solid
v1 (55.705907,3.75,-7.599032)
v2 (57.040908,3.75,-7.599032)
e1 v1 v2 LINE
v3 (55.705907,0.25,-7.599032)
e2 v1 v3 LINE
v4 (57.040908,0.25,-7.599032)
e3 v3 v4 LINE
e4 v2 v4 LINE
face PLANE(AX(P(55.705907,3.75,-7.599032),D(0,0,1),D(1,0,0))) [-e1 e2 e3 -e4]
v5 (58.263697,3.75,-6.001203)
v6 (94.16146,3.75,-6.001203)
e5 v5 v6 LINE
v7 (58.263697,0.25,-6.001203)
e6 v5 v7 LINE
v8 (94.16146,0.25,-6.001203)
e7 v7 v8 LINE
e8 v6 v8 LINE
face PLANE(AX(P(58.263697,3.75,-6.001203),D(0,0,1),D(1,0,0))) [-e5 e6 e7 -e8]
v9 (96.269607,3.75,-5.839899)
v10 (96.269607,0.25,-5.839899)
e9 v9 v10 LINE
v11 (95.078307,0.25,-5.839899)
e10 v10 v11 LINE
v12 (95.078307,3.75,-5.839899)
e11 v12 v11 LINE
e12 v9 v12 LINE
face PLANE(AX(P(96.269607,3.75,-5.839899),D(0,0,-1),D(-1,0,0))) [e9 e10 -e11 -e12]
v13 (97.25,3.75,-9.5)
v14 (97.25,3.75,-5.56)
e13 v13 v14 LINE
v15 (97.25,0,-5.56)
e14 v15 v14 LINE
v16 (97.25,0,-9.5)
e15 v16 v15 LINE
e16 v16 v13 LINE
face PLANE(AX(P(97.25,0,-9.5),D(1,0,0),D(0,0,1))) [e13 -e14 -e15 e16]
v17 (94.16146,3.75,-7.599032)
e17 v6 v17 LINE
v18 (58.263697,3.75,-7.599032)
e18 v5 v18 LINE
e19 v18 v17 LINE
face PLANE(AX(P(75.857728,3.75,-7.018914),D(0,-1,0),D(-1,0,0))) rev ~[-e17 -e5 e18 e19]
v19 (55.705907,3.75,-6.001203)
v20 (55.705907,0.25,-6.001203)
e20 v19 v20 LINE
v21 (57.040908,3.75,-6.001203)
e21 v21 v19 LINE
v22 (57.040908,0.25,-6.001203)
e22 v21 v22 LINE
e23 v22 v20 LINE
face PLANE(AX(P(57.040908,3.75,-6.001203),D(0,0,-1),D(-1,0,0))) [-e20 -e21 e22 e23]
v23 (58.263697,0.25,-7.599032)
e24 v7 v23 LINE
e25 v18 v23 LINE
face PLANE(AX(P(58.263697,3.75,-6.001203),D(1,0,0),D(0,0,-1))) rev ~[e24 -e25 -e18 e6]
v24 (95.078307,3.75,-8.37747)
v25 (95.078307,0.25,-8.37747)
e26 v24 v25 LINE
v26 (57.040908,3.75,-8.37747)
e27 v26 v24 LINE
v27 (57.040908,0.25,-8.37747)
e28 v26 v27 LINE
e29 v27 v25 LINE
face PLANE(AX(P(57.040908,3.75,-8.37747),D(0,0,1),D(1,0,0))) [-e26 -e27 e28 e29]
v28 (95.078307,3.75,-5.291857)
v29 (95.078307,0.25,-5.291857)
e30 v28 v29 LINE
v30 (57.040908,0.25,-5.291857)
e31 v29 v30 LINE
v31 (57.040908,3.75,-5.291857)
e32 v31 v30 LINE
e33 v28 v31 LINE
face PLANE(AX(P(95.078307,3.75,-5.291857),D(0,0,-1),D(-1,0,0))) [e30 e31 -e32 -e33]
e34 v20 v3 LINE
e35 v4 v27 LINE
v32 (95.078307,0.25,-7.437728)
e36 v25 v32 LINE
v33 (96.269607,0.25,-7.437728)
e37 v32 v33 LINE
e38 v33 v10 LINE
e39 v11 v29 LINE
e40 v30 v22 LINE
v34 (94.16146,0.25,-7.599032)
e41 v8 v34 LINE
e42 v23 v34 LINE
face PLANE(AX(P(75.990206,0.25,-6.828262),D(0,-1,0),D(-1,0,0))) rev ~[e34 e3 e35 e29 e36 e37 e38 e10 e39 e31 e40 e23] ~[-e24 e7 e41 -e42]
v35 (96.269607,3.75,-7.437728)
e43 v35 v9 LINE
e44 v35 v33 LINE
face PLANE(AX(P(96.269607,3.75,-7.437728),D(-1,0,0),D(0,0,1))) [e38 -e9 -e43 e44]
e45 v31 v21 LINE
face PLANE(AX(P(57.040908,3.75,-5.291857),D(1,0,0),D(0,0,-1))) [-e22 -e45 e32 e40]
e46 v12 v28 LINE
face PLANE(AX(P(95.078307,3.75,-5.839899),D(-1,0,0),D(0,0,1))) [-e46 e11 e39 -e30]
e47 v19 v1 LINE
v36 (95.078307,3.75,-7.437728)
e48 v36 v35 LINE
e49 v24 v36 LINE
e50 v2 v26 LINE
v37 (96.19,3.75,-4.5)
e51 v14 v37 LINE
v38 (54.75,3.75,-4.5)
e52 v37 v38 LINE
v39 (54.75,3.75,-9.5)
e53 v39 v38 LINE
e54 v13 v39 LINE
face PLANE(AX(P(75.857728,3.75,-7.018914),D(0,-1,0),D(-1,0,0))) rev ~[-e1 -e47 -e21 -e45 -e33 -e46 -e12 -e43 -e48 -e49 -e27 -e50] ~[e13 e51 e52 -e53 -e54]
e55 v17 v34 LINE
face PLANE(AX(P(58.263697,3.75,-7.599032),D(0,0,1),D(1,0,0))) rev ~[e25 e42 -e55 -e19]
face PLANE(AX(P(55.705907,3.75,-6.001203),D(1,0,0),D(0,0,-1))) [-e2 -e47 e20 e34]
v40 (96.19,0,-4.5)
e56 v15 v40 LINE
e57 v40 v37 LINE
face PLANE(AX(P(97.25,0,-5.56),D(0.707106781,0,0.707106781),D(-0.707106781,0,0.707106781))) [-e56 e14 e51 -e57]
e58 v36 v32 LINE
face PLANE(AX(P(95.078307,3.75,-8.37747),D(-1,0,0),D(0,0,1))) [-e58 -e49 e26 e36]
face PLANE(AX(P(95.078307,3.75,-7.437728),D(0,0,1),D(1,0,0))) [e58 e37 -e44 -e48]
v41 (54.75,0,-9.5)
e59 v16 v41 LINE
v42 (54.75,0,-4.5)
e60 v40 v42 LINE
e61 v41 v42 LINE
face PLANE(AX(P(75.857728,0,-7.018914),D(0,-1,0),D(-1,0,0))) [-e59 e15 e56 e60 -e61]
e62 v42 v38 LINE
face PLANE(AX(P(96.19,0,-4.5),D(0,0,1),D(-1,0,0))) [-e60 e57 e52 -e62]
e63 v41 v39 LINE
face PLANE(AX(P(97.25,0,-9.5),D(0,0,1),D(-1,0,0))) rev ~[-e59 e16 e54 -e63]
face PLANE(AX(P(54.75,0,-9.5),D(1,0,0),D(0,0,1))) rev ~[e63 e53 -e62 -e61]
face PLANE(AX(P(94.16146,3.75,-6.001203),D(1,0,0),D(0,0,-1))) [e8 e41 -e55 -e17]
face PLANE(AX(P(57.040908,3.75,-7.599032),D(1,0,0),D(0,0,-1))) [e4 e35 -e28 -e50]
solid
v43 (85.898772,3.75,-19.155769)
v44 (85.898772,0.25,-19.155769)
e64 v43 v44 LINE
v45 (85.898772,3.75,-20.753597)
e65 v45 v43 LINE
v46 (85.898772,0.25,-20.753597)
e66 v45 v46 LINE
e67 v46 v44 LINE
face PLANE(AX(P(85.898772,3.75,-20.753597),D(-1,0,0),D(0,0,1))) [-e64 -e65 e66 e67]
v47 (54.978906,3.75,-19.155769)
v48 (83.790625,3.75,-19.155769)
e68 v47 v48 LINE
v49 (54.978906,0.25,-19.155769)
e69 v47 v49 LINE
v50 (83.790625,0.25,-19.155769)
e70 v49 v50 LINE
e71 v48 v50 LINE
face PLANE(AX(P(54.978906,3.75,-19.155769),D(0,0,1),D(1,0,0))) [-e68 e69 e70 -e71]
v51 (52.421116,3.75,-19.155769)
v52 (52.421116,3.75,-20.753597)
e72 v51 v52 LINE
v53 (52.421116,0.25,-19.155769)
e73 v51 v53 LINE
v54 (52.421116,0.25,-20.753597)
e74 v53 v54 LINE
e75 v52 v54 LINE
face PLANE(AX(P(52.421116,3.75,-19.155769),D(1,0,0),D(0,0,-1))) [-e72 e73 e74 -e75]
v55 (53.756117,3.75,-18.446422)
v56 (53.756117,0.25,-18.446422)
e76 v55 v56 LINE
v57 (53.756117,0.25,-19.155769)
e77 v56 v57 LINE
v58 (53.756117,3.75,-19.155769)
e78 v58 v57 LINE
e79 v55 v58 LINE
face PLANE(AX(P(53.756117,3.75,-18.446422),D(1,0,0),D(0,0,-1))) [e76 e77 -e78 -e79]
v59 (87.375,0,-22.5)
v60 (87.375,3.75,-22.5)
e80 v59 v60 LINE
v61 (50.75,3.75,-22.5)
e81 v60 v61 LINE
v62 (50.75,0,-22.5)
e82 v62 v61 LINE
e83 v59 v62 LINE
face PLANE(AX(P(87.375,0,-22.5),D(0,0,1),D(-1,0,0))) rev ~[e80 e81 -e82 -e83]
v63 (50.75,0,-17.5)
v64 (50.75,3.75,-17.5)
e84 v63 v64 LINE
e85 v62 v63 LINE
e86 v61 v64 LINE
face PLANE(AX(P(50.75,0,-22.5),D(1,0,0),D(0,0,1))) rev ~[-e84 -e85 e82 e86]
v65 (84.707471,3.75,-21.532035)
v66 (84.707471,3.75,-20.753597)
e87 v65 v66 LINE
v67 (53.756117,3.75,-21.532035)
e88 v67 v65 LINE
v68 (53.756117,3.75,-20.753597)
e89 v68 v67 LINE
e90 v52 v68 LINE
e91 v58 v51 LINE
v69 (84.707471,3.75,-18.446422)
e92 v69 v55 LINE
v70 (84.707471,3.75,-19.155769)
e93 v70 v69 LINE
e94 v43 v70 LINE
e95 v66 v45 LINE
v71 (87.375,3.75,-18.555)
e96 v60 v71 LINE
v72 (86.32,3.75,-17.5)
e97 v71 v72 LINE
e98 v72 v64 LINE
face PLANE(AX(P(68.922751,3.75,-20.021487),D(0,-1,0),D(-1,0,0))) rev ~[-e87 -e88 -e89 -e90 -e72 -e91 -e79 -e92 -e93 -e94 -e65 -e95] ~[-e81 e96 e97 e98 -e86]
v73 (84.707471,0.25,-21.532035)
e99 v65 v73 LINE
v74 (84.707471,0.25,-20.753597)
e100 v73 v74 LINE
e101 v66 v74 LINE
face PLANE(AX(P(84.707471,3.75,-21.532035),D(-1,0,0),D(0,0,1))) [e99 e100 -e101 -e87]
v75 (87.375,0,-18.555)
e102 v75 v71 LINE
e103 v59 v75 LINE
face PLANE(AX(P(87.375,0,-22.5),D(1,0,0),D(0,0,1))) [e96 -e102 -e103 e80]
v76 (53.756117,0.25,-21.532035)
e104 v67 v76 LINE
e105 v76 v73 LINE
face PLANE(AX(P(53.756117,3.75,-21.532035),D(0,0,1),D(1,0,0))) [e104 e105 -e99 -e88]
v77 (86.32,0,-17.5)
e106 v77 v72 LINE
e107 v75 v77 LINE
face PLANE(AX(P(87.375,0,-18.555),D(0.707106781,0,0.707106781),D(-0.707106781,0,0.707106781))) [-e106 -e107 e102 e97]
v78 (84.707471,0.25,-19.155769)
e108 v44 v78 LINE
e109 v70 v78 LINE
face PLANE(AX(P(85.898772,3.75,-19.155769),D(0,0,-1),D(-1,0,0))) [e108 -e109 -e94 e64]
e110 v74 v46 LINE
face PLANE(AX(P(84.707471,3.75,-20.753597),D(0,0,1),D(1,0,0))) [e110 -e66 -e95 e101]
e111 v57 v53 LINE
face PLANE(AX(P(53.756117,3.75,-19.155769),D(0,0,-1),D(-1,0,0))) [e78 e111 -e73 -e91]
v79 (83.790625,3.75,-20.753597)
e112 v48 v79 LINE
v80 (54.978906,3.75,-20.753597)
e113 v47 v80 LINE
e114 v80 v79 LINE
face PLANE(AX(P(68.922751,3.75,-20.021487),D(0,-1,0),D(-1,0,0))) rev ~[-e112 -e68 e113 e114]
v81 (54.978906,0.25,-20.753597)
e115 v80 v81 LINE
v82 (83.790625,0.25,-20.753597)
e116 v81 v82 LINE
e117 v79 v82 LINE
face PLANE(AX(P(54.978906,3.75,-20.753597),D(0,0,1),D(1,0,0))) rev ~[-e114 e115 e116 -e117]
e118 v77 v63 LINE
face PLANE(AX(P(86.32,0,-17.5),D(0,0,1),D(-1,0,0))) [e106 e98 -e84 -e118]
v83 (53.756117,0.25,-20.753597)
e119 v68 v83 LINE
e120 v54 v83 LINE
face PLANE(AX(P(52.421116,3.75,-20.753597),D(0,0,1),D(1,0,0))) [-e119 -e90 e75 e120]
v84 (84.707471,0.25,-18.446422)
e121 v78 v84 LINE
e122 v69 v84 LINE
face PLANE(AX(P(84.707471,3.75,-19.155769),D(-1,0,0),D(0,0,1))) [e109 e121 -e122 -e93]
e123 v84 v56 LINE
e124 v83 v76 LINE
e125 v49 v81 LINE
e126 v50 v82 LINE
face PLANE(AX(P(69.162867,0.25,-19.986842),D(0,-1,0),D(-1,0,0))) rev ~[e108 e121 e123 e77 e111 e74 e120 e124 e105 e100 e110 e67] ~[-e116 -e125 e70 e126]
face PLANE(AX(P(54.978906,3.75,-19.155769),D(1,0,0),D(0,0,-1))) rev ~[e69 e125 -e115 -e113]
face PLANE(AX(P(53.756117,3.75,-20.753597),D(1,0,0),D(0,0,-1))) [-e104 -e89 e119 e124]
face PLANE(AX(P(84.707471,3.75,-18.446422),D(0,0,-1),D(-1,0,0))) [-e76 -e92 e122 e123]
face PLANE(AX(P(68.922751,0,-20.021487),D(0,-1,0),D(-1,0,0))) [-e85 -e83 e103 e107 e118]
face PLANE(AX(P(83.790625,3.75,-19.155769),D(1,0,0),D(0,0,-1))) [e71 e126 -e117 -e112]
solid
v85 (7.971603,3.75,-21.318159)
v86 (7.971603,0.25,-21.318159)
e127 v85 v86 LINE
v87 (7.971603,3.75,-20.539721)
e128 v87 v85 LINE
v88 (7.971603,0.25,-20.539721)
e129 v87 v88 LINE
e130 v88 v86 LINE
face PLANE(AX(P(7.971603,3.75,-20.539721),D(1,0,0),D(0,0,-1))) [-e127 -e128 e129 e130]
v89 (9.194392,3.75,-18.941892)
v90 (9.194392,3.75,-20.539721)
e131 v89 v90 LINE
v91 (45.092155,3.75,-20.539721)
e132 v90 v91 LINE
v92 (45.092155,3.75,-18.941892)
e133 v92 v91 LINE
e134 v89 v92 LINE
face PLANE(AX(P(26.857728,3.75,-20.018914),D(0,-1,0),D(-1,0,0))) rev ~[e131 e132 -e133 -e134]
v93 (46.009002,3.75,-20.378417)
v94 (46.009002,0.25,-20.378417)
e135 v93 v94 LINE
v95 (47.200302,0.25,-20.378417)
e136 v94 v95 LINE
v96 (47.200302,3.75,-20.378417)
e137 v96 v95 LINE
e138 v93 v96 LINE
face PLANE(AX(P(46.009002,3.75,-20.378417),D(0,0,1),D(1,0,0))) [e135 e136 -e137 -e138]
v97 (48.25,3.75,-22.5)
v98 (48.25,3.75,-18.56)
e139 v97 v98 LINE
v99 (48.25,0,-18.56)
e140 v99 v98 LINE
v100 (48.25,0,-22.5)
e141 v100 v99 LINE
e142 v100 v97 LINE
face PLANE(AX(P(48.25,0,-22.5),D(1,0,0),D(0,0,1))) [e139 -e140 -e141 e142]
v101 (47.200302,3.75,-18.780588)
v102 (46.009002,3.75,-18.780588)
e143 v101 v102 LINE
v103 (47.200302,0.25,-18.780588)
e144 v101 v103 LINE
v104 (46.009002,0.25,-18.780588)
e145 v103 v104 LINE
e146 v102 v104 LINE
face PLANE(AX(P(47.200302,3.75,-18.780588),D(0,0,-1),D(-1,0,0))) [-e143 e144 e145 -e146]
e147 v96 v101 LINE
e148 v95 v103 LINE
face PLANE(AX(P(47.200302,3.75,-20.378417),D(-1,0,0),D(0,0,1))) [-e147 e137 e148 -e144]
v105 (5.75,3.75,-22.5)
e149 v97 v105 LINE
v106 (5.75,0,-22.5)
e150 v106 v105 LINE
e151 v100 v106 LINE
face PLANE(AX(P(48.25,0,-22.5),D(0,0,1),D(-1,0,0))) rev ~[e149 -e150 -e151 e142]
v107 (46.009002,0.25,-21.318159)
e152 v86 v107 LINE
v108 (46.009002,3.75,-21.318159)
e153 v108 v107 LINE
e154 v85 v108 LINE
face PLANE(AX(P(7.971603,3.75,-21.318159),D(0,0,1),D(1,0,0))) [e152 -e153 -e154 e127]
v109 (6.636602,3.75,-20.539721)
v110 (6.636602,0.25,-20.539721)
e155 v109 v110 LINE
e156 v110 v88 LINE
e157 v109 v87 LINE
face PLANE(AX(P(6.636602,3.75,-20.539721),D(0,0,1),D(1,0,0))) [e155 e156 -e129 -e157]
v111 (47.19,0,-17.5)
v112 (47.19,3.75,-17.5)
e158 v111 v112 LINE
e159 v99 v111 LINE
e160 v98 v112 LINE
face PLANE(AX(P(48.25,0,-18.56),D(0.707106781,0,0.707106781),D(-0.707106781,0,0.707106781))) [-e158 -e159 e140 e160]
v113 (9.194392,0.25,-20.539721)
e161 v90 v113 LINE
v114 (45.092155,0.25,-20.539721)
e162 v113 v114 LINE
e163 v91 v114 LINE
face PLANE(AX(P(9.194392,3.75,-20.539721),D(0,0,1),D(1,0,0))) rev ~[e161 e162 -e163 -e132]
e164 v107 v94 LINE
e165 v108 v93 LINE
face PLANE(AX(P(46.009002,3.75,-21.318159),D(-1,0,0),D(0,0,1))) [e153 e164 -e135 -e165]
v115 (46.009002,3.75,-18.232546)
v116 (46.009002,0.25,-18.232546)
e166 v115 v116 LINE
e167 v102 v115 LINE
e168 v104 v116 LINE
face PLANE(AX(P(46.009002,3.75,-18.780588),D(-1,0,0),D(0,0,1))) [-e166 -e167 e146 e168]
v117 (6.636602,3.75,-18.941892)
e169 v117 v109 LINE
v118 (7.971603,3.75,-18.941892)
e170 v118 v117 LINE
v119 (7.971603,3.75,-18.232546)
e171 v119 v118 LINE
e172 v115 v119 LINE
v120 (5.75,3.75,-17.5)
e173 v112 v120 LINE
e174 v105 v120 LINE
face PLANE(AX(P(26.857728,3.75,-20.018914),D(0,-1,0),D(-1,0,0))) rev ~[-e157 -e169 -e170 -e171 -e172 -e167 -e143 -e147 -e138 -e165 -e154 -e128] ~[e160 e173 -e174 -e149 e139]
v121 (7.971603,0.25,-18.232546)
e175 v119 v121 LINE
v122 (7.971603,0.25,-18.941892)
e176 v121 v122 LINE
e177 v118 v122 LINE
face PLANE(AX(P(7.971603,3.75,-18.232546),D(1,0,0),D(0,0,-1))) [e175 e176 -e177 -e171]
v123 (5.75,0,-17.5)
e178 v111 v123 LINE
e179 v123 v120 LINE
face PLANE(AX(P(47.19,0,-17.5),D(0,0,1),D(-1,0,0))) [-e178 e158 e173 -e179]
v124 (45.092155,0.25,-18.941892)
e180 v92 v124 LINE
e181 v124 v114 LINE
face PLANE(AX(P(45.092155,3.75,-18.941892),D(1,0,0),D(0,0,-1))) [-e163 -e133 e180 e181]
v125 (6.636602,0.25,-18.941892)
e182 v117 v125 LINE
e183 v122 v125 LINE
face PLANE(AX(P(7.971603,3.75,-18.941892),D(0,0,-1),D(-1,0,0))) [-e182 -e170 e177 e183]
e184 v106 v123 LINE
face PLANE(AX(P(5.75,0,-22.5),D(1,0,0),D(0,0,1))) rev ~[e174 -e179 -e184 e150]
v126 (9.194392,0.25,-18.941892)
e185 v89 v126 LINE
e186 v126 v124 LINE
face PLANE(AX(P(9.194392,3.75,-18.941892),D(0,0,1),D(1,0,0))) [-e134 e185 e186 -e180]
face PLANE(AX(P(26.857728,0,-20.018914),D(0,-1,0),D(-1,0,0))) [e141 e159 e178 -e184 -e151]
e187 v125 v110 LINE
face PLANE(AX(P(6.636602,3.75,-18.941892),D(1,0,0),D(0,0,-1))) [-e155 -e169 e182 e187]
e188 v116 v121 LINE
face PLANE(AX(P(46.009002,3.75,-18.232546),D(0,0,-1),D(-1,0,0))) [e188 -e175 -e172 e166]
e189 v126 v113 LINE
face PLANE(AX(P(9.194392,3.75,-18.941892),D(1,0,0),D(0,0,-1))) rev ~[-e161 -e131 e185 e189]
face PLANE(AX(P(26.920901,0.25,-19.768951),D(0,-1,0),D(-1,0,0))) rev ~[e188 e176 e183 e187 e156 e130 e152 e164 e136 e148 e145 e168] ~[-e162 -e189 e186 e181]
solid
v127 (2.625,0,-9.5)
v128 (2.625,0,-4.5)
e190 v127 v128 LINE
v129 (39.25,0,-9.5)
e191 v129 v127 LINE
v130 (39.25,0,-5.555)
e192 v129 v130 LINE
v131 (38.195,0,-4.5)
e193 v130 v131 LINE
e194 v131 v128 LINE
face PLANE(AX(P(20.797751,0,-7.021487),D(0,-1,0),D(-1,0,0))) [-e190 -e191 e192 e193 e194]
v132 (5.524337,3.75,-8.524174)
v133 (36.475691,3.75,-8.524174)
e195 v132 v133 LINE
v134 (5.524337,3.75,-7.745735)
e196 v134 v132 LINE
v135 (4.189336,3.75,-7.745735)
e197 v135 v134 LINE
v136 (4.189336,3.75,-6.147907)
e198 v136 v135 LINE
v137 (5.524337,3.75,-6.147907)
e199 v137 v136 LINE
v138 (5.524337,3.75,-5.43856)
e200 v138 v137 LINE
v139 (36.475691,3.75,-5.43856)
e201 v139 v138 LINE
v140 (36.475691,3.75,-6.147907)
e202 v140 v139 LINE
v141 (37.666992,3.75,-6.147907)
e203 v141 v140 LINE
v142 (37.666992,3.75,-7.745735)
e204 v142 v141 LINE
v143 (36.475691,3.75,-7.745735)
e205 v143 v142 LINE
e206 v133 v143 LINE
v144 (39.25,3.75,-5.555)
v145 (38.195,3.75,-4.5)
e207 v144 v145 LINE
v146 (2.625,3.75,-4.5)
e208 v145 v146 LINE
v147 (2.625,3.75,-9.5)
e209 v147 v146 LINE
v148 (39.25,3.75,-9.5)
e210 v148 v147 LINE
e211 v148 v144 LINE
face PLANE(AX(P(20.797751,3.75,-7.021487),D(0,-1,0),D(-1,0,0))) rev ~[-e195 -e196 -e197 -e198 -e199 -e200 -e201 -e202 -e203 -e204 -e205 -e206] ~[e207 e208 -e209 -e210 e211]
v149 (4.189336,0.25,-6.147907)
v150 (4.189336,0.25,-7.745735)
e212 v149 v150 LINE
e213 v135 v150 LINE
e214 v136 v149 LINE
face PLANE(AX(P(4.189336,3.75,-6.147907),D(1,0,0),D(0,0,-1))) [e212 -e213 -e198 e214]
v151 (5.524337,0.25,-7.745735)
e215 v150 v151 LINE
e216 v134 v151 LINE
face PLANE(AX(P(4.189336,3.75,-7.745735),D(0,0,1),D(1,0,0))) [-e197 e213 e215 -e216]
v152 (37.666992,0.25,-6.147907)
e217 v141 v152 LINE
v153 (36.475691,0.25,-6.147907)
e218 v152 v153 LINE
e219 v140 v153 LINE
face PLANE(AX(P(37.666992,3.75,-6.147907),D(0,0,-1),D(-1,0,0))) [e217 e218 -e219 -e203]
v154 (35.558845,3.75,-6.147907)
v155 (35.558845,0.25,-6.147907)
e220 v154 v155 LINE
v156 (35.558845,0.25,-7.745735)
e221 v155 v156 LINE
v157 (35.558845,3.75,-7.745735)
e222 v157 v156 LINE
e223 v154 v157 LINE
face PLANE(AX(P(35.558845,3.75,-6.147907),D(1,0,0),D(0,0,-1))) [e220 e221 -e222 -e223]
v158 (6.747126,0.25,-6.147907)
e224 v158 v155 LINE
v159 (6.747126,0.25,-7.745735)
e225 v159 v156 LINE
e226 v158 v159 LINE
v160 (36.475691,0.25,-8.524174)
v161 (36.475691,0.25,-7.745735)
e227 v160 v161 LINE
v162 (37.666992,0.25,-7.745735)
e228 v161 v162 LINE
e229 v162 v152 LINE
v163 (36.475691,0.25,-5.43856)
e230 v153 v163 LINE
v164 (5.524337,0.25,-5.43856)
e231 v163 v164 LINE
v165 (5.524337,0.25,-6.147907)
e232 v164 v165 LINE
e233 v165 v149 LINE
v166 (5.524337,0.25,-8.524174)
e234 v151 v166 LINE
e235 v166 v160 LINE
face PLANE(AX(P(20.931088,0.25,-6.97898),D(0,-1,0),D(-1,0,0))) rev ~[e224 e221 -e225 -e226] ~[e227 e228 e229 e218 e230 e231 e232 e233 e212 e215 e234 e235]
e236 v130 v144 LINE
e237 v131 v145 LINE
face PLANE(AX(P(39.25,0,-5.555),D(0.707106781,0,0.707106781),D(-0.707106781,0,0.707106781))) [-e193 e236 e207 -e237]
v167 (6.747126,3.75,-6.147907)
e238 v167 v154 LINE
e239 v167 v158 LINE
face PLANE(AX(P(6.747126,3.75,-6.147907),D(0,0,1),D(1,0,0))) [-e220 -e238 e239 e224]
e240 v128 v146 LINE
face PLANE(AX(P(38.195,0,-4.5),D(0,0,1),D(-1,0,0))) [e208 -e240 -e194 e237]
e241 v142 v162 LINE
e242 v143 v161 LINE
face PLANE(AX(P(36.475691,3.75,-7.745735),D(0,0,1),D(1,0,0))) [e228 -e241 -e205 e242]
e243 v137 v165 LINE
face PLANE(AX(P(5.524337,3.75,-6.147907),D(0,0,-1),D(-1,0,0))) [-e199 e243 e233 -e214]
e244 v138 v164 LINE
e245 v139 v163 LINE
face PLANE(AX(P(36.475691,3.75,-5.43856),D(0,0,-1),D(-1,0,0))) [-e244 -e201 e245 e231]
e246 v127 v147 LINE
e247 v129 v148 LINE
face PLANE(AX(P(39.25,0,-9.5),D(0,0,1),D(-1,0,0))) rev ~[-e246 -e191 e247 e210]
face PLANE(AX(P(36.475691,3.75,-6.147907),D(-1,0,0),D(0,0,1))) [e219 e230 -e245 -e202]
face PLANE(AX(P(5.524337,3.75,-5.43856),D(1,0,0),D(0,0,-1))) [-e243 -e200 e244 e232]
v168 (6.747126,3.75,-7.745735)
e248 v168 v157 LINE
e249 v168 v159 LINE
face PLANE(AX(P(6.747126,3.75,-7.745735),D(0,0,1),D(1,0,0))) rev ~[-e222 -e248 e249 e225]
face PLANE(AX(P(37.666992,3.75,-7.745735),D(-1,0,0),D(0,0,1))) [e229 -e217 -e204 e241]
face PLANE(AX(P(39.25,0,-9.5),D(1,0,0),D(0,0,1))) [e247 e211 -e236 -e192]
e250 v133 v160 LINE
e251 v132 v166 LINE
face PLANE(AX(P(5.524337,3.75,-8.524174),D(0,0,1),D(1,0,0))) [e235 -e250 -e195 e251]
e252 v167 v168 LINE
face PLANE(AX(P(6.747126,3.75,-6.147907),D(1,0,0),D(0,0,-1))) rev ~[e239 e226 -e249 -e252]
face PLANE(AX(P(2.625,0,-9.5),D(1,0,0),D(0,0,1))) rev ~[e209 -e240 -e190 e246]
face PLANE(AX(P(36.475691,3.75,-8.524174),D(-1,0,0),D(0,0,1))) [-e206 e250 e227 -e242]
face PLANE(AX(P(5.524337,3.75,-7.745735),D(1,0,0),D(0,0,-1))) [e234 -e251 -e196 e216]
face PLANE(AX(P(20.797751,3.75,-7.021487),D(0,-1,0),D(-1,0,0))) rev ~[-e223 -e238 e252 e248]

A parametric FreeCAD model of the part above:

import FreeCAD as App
import Part
import Sketcher
Q = App.Units.Quantity

doc = App.newDocument("Part")
params = doc.addObject("Spreadsheet::Sheet", "Params")
for row, (alias, value) in enumerate([
    ("sketch1_height", "5 mm"),
    ("sketch1_width", "42.5 mm"),
    ("sketch1_width2", "41.44 mm"),
    ("pad1_length", "3.75 mm"),
    ("sketch2_height", "5 mm"),
    ("sketch2_width", "35.57 mm"),
    ("pad2_length", "3.75 mm"),
    ("sketch3_height", "5 mm"),
    ("sketch3_width", "35.57 mm"),
    ("pad3_length", "3.75 mm"),
    ("sketch4_height", "5 mm"),
    ("sketch4_width", "42.5 mm"),
    ("sketch4_width2", "41.44 mm"),
    ("pad4_length", "3.75 mm"),
    ("pad5_length", "3.5 mm"),
], start=1):
    params.set(f"A{row}", alias)
    params.set(f"B{row}", "=" + value)
    params.setAlias(f"B{row}", alias)

body = doc.addObject("PartDesign::Body", "Body")

# Sketch on XZ plane
sketch1 = body.newObject("Sketcher::SketchObject", "Sketch")
sketch1.AttachmentSupport = (doc.getObject("XZ_Plane"), [""])
sketch1.MapMode = "FlatFace"
sketch1.addGeometry(Part.LineSegment(App.Vector(97.25, -9.5, 0), App.Vector(54.75, -9.5, 0)), False)
sketch1.addGeometry(Part.LineSegment(App.Vector(54.75, -9.5, 0), App.Vector(54.75, -4.5, 0)), False)
sketch1.addGeometry(Part.LineSegment(App.Vector(54.75, -4.5, 0), App.Vector(96.19, -4.5, 0)), False)
sketch1.addGeometry(Part.LineSegment(App.Vector(96.19, -4.5, 0), App.Vector(97.25, -5.56, 0)), False)
sketch1.addGeometry(Part.LineSegment(App.Vector(97.25, -5.56, 0), App.Vector(97.25, -9.5, 0)), False)
sketch1.addConstraint(Sketcher.Constraint("Coincident", 0, 2, 1, 1))
sketch1.addConstraint(Sketcher.Constraint("Coincident", 1, 2, 2, 1))
sketch1.addConstraint(Sketcher.Constraint("Coincident", 2, 2, 3, 1))
sketch1.addConstraint(Sketcher.Constraint("Coincident", 3, 2, 4, 1))
sketch1.addConstraint(Sketcher.Constraint("Coincident", 4, 2, 0, 1))
sketch1.addConstraint(Sketcher.Constraint("Horizontal", 0))
sketch1.addConstraint(Sketcher.Constraint("Vertical", 1))
sketch1.addConstraint(Sketcher.Constraint("Horizontal", 2))
sketch1.addConstraint(Sketcher.Constraint("Vertical", 4))
sketch1.addConstraint(Sketcher.Constraint("DistanceY", 1, 1, 1, 2, Q("5 mm")))
sketch1.addConstraint(Sketcher.Constraint("Angle", 3, Q("-45 deg")))
sketch1.addConstraint(Sketcher.Constraint("DistanceX", 0, 2, 0, 1, Q("42.5 mm")))
sketch1.addConstraint(Sketcher.Constraint("DistanceX", 2, 1, 2, 2, Q("41.44 mm")))
sketch1.addConstraint(Sketcher.Constraint("DistanceY", 0, 2, -1, 1, Q("9.5 mm")))
sketch1.addConstraint(Sketcher.Constraint("DistanceX", -1, 1, 0, 2, Q("54.75 mm")))
sketch1.setExpression("Constraints[9]", "Params.sketch1_height")
sketch1.setExpression("Constraints[11]", "Params.sketch1_width")
sketch1.setExpression("Constraints[12]", "Params.sketch1_width2")
pad1 = body.newObject("PartDesign::Pad", "Pad")
pad1.Profile = sketch1
pad1.setExpression("Length", "Params.pad1_length")
pad1.Reversed = True
body2 = doc.addObject("PartDesign::Body", "Body001")

# Sketch on XZ plane
sketch2 = body2.newObject("Sketcher::SketchObject", "Sketch001")
sketch2.AttachmentSupport = (doc.getObject("XZ_Plane001"), [""])
sketch2.MapMode = "FlatFace"
sketch2.addGeometry(Part.LineSegment(App.Vector(39.25, -9.5, 0), App.Vector(2.625, -9.5, 0)), False)
sketch2.addGeometry(Part.LineSegment(App.Vector(2.625, -9.5, 0), App.Vector(2.625, -4.5, 0)), False)
sketch2.addGeometry(Part.LineSegment(App.Vector(2.625, -4.5, 0), App.Vector(38.195, -4.5, 0)), False)
sketch2.addGeometry(Part.LineSegment(App.Vector(38.195, -4.5, 0), App.Vector(39.25, -5.555, 0)), False)
sketch2.addGeometry(Part.LineSegment(App.Vector(39.25, -5.555, 0), App.Vector(39.25, -9.5, 0)), False)
sketch2.addConstraint(Sketcher.Constraint("Coincident", 0, 2, 1, 1))
sketch2.addConstraint(Sketcher.Constraint("Coincident", 1, 2, 2, 1))
sketch2.addConstraint(Sketcher.Constraint("Coincident", 2, 2, 3, 1))
sketch2.addConstraint(Sketcher.Constraint("Coincident", 3, 2, 4, 1))
sketch2.addConstraint(Sketcher.Constraint("Coincident", 4, 2, 0, 1))
sketch2.addConstraint(Sketcher.Constraint("Horizontal", 0))
sketch2.addConstraint(Sketcher.Constraint("Vertical", 1))
sketch2.addConstraint(Sketcher.Constraint("Horizontal", 2))
sketch2.addConstraint(Sketcher.Constraint("Vertical", 4))
sketch2.addConstraint(Sketcher.Constraint("DistanceY", 1, 1, 1, 2, Q("5 mm")))
sketch2.addConstraint(Sketcher.Constraint("Angle", 3, Q("-45 deg")))
sketch2.addConstraint(Sketcher.Constraint("DistanceX", 2, 1, 2, 2, Q("35.57 mm")))
sketch2.addConstraint(Sketcher.Constraint("DistanceY", 0, 2, -1, 1, Q("9.5 mm")))
sketch2.addConstraint(Sketcher.Constraint("DistanceX", 0, 2, 0, 1, Q("36.625 mm")))
sketch2.addConstraint(Sketcher.Constraint("DistanceX", -1, 1, 3, 2, Q("39.25 mm")))
sketch2.setExpression("Constraints[9]", "Params.sketch2_height")
sketch2.setExpression("Constraints[11]", "Params.sketch2_width")
pad2 = body2.newObject("PartDesign::Pad", "Pad001")
pad2.Profile = sketch2
pad2.setExpression("Length", "Params.pad2_length")
pad2.Reversed = True
body3 = doc.addObject("PartDesign::Body", "Body002")

# Sketch on XZ plane
sketch3 = body3.newObject("Sketcher::SketchObject", "Sketch002")
sketch3.AttachmentSupport = (doc.getObject("XZ_Plane002"), [""])
sketch3.MapMode = "FlatFace"
sketch3.addGeometry(Part.LineSegment(App.Vector(87.375, -22.5, 0), App.Vector(50.75, -22.5, 0)), False)
sketch3.addGeometry(Part.LineSegment(App.Vector(50.75, -22.5, 0), App.Vector(50.75, -17.5, 0)), False)
sketch3.addGeometry(Part.LineSegment(App.Vector(50.75, -17.5, 0), App.Vector(86.32, -17.5, 0)), False)
sketch3.addGeometry(Part.LineSegment(App.Vector(86.32, -17.5, 0), App.Vector(87.375, -18.555, 0)), False)
sketch3.addGeometry(Part.LineSegment(App.Vector(87.375, -18.555, 0), App.Vector(87.375, -22.5, 0)), False)
sketch3.addConstraint(Sketcher.Constraint("Coincident", 0, 2, 1, 1))
sketch3.addConstraint(Sketcher.Constraint("Coincident", 1, 2, 2, 1))
sketch3.addConstraint(Sketcher.Constraint("Coincident", 2, 2, 3, 1))
sketch3.addConstraint(Sketcher.Constraint("Coincident", 3, 2, 4, 1))
sketch3.addConstraint(Sketcher.Constraint("Coincident", 4, 2, 0, 1))
sketch3.addConstraint(Sketcher.Constraint("Horizontal", 0))
sketch3.addConstraint(Sketcher.Constraint("Vertical", 1))
sketch3.addConstraint(Sketcher.Constraint("Horizontal", 2))
sketch3.addConstraint(Sketcher.Constraint("Vertical", 4))
sketch3.addConstraint(Sketcher.Constraint("DistanceY", 1, 1, 1, 2, Q("5 mm")))
sketch3.addConstraint(Sketcher.Constraint("Angle", 3, Q("-45 deg")))
sketch3.addConstraint(Sketcher.Constraint("DistanceX", 2, 1, 2, 2, Q("35.57 mm")))
sketch3.addConstraint(Sketcher.Constraint("DistanceY", 0, 2, -1, 1, Q("22.5 mm")))
sketch3.addConstraint(Sketcher.Constraint("DistanceX", 0, 2, 0, 1, Q("36.625 mm")))
sketch3.addConstraint(Sketcher.Constraint("DistanceX", -1, 1, 0, 2, Q("50.75 mm")))
sketch3.setExpression("Constraints[9]", "Params.sketch3_height")
sketch3.setExpression("Constraints[11]", "Params.sketch3_width")
pad3 = body3.newObject("PartDesign::Pad", "Pad002")
pad3.Profile = sketch3
pad3.setExpression("Length", "Params.pad3_length")
pad3.Reversed = True
body4 = doc.addObject("PartDesign::Body", "Body003")

# Sketch on XZ plane
sketch4 = body4.newObject("Sketcher::SketchObject", "Sketch003")
sketch4.AttachmentSupport = (doc.getObject("XZ_Plane003"), [""])
sketch4.MapMode = "FlatFace"
sketch4.addGeometry(Part.LineSegment(App.Vector(48.25, -22.5, 0), App.Vector(5.75, -22.5, 0)), False)
sketch4.addGeometry(Part.LineSegment(App.Vector(5.75, -22.5, 0), App.Vector(5.75, -17.5, 0)), False)
sketch4.addGeometry(Part.LineSegment(App.Vector(5.75, -17.5, 0), App.Vector(47.19, -17.5, 0)), False)
sketch4.addGeometry(Part.LineSegment(App.Vector(47.19, -17.5, 0), App.Vector(48.25, -18.56, 0)), False)
sketch4.addGeometry(Part.LineSegment(App.Vector(48.25, -18.56, 0), App.Vector(48.25, -22.5, 0)), False)
sketch4.addConstraint(Sketcher.Constraint("Coincident", 0, 2, 1, 1))
sketch4.addConstraint(Sketcher.Constraint("Coincident", 1, 2, 2, 1))
sketch4.addConstraint(Sketcher.Constraint("Coincident", 2, 2, 3, 1))
sketch4.addConstraint(Sketcher.Constraint("Coincident", 3, 2, 4, 1))
sketch4.addConstraint(Sketcher.Constraint("Coincident", 4, 2, 0, 1))
sketch4.addConstraint(Sketcher.Constraint("Horizontal", 0))
sketch4.addConstraint(Sketcher.Constraint("Vertical", 1))
sketch4.addConstraint(Sketcher.Constraint("Horizontal", 2))
sketch4.addConstraint(Sketcher.Constraint("Vertical", 4))
sketch4.addConstraint(Sketcher.Constraint("DistanceY", 1, 1, 1, 2, Q("5 mm")))
sketch4.addConstraint(Sketcher.Constraint("Angle", 3, Q("-45 deg")))
sketch4.addConstraint(Sketcher.Constraint("DistanceX", 0, 2, 0, 1, Q("42.5 mm")))
sketch4.addConstraint(Sketcher.Constraint("DistanceX", 2, 1, 2, 2, Q("41.44 mm")))
sketch4.addConstraint(Sketcher.Constraint("DistanceY", 0, 2, -1, 1, Q("22.5 mm")))
sketch4.addConstraint(Sketcher.Constraint("DistanceX", -1, 1, 0, 2, Q("5.75 mm")))
sketch4.setExpression("Constraints[9]", "Params.sketch4_height")
sketch4.setExpression("Constraints[11]", "Params.sketch4_width")
sketch4.setExpression("Constraints[12]", "Params.sketch4_width2")
pad4 = body4.newObject("PartDesign::Pad", "Pad003")
pad4.Profile = sketch4
pad4.setExpression("Length", "Params.pad4_length")
pad4.Reversed = True
body5 = doc.addObject("PartDesign::Body", "Body004")
body5.AllowCompound = True

# Sketch on XZ plane
sketch5 = body5.newObject("Sketcher::SketchObject", "Sketch004")
sketch5.AttachmentSupport = (doc.getObject("XZ_Plane004"), [""])
sketch5.MapMode = "FlatFace"
sketch5.AttachmentOffset = App.Placement(App.Vector(0, 0, -3.75), App.Rotation())
sketch5.addGeometry(Part.LineSegment(App.Vector(5.524337, -7.745735, 0), App.Vector(4.189336, -7.745735, 0)), False)
sketch5.addGeometry(Part.LineSegment(App.Vector(4.189336, -7.745735, 0), App.Vector(4.189336, -6.147907, 0)), False)
sketch5.addGeometry(Part.LineSegment(App.Vector(4.189336, -6.147907, 0), App.Vector(5.524337, -6.147907, 0)), False)
sketch5.addGeometry(Part.LineSegment(App.Vector(5.524337, -6.147907, 0), App.Vector(5.524337, -5.43856, 0)), False)
sketch5.addGeometry(Part.LineSegment(App.Vector(5.524337, -5.43856, 0), App.Vector(36.475691, -5.43856, 0)), False)
sketch5.addGeometry(Part.LineSegment(App.Vector(36.475691, -5.43856, 0), App.Vector(36.475691, -6.147907, 0)), False)
sketch5.addGeometry(Part.LineSegment(App.Vector(36.475691, -6.147907, 0), App.Vector(37.666992, -6.147907, 0)), False)
sketch5.addGeometry(Part.LineSegment(App.Vector(37.666992, -6.147907, 0), App.Vector(37.666992, -7.745735, 0)), False)
sketch5.addGeometry(Part.LineSegment(App.Vector(37.666992, -7.745735, 0), App.Vector(36.475691, -7.745735, 0)), False)
sketch5.addGeometry(Part.LineSegment(App.Vector(36.475691, -7.745735, 0), App.Vector(36.475691, -8.524174, 0)), False)
sketch5.addGeometry(Part.LineSegment(App.Vector(36.475691, -8.524174, 0), App.Vector(5.524337, -8.524174, 0)), False)
sketch5.addGeometry(Part.LineSegment(App.Vector(5.524337, -8.524174, 0), App.Vector(5.524337, -7.745735, 0)), False)
sketch5.addGeometry(Part.LineSegment(App.Vector(6.747126, -6.147907, 0), App.Vector(6.747126, -7.745735, 0)), False)
sketch5.addGeometry(Part.LineSegment(App.Vector(6.747126, -7.745735, 0), App.Vector(35.558845, -7.745735, 0)), False)
sketch5.addGeometry(Part.LineSegment(App.Vector(35.558845, -7.745735, 0), App.Vector(35.558845, -6.147907, 0)), False)
sketch5.addGeometry(Part.LineSegment(App.Vector(35.558845, -6.147907, 0), App.Vector(6.747126, -6.147907, 0)), False)
sketch5.addGeometry(Part.LineSegment(App.Vector(53.756117, -20.753597, 0), App.Vector(52.421116, -20.753597, 0)), False)
sketch5.addGeometry(Part.LineSegment(App.Vector(52.421116, -20.753597, 0), App.Vector(52.421116, -19.155769, 0)), False)
sketch5.addGeometry(Part.LineSegment(App.Vector(52.421116, -19.155769, 0), App.Vector(53.756117, -19.155769, 0)), False)
sketch5.addGeometry(Part.LineSegment(App.Vector(53.756117, -19.155769, 0), App.Vector(53.756117, -18.446422, 0)), False)
sketch5.addGeometry(Part.LineSegment(App.Vector(53.756117, -18.446422, 0), App.Vector(84.707471, -18.446422, 0)), False)
sketch5.addGeometry(Part.LineSegment(App.Vector(84.707471, -18.446422, 0), App.Vector(84.707471, -19.155769, 0)), False)
sketch5.addGeometry(Part.LineSegment(App.Vector(84.707471, -19.155769, 0), App.Vector(85.898772, -19.155769, 0)), False)
sketch5.addGeometry(Part.LineSegment(App.Vector(85.898772, -19.155769, 0), App.Vector(85.898772, -20.753597, 0)), False)
sketch5.addGeometry(Part.LineSegment(App.Vector(85.898772, -20.753597, 0), App.Vector(84.707471, -20.753597, 0)), False)
sketch5.addGeometry(Part.LineSegment(App.Vector(84.707471, -20.753597, 0), App.Vector(84.707471, -21.532035, 0)), False)
sketch5.addGeometry(Part.LineSegment(App.Vector(84.707471, -21.532035, 0), App.Vector(53.756117, -21.532035, 0)), False)
sketch5.addGeometry(Part.LineSegment(App.Vector(53.756117, -21.532035, 0), App.Vector(53.756117, -20.753597, 0)), False)
sketch5.addGeometry(Part.LineSegment(App.Vector(54.978906, -19.155769, 0), App.Vector(54.978906, -20.753597, 0)), False)
sketch5.addGeometry(Part.LineSegment(App.Vector(54.978906, -20.753597, 0), App.Vector(83.790625, -20.753597, 0)), False)
sketch5.addGeometry(Part.LineSegment(App.Vector(83.790625, -20.753597, 0), App.Vector(83.790625, -19.155769, 0)), False)
sketch5.addGeometry(Part.LineSegment(App.Vector(83.790625, -19.155769, 0), App.Vector(54.978906, -19.155769, 0)), False)
sketch5.addGeometry(Part.LineSegment(App.Vector(57.040908, -7.599032, 0), App.Vector(55.705907, -7.599032, 0)), False)
sketch5.addGeometry(Part.LineSegment(App.Vector(55.705907, -7.599032, 0), App.Vector(55.705907, -6.001203, 0)), False)
sketch5.addGeometry(Part.LineSegment(App.Vector(55.705907, -6.001203, 0), App.Vector(57.040908, -6.001203, 0)), False)
sketch5.addGeometry(Part.LineSegment(App.Vector(57.040908, -6.001203, 0), App.Vector(57.040908, -5.291857, 0)), False)
sketch5.addGeometry(Part.LineSegment(App.Vector(57.040908, -5.291857, 0), App.Vector(95.078307, -5.291857, 0)), False)
sketch5.addGeometry(Part.LineSegment(App.Vector(95.078307, -5.291857, 0), App.Vector(95.078307, -5.839899, 0)), False)
sketch5.addGeometry(Part.LineSegment(App.Vector(95.078307, -5.839899, 0), App.Vector(96.269607, -5.839899, 0)), False)
sketch5.addGeometry(Part.LineSegment(App.Vector(96.269607, -5.839899, 0), App.Vector(96.269607, -7.437728, 0)), False)
sketch5.addGeometry(Part.LineSegment(App.Vector(96.269607, -7.437728, 0), App.Vector(95.078307, -7.437728, 0)), False)
sketch5.addGeometry(Part.LineSegment(App.Vector(95.078307, -7.437728, 0), App.Vector(95.078307, -8.37747, 0)), False)
sketch5.addGeometry(Part.LineSegment(App.Vector(95.078307, -8.37747, 0), App.Vector(57.040908, -8.37747, 0)), False)
sketch5.addGeometry(Part.LineSegment(App.Vector(57.040908, -8.37747, 0), App.Vector(57.040908, -7.599032, 0)), False)
sketch5.addGeometry(Part.LineSegment(App.Vector(58.263697, -6.001203, 0), App.Vector(58.263697, -7.599032, 0)), False)
sketch5.addGeometry(Part.LineSegment(App.Vector(58.263697, -7.599032, 0), App.Vector(94.16146, -7.599032, 0)), False)
sketch5.addGeometry(Part.LineSegment(App.Vector(94.16146, -7.599032, 0), App.Vector(94.16146, -6.001203, 0)), False)
sketch5.addGeometry(Part.LineSegment(App.Vector(94.16146, -6.001203, 0), App.Vector(58.263697, -6.001203, 0)), False)
sketch5.addGeometry(Part.LineSegment(App.Vector(7.971603, -20.539721, 0), App.Vector(6.636602, -20.539721, 0)), False)
sketch5.addGeometry(Part.LineSegment(App.Vector(6.636602, -20.539721, 0), App.Vector(6.636602, -18.941892, 0)), False)
sketch5.addGeometry(Part.LineSegment(App.Vector(6.636602, -18.941892, 0), App.Vector(7.971603, -18.941892, 0)), False)
sketch5.addGeometry(Part.LineSegment(App.Vector(7.971603, -18.941892, 0), App.Vector(7.971603, -18.232546, 0)), False)
sketch5.addGeometry(Part.LineSegment(App.Vector(7.971603, -18.232546, 0), App.Vector(46.009002, -18.232546, 0)), False)
sketch5.addGeometry(Part.LineSegment(App.Vector(46.009002, -18.232546, 0), App.Vector(46.009002, -18.780588, 0)), False)
sketch5.addGeometry(Part.LineSegment(App.Vector(46.009002, -18.780588, 0), App.Vector(47.200302, -18.780588, 0)), False)
sketch5.addGeometry(Part.LineSegment(App.Vector(47.200302, -18.780588, 0), App.Vector(47.200302, -20.378417, 0)), False)
sketch5.addGeometry(Part.LineSegment(App.Vector(47.200302, -20.378417, 0), App.Vector(46.009002, -20.378417, 0)), False)
sketch5.addGeometry(Part.LineSegment(App.Vector(46.009002, -20.378417, 0), App.Vector(46.009002, -21.318159, 0)), False)
sketch5.addGeometry(Part.LineSegment(App.Vector(46.009002, -21.318159, 0), App.Vector(7.971603, -21.318159, 0)), False)
sketch5.addGeometry(Part.LineSegment(App.Vector(7.971603, -21.318159, 0), App.Vector(7.971603, -20.539721, 0)), False)
sketch5.addGeometry(Part.LineSegment(App.Vector(9.194392, -18.941892, 0), App.Vector(9.194392, -20.539721, 0)), False)
sketch5.addGeometry(Part.LineSegment(App.Vector(9.194392, -20.539721, 0), App.Vector(45.092155, -20.539721, 0)), False)
sketch5.addGeometry(Part.LineSegment(App.Vector(45.092155, -20.539721, 0), App.Vector(45.092155, -18.941892, 0)), False)
sketch5.addGeometry(Part.LineSegment(App.Vector(45.092155, -18.941892, 0), App.Vector(9.194392, -18.941892, 0)), False)
sketch5.addConstraint(Sketcher.Constraint("Coincident", 0, 2, 1, 1))
sketch5.addConstraint(Sketcher.Constraint("Coincident", 1, 2, 2, 1))
sketch5.addConstraint(Sketcher.Constraint("Coincident", 2, 2, 3, 1))
sketch5.addConstraint(Sketcher.Constraint("Coincident", 3, 2, 4, 1))
sketch5.addConstraint(Sketcher.Constraint("Coincident", 4, 2, 5, 1))
sketch5.addConstraint(Sketcher.Constraint("Coincident", 5, 2, 6, 1))
sketch5.addConstraint(Sketcher.Constraint("Coincident", 6, 2, 7, 1))
sketch5.addConstraint(Sketcher.Constraint("Coincident", 7, 2, 8, 1))
sketch5.addConstraint(Sketcher.Constraint("Coincident", 8, 2, 9, 1))
sketch5.addConstraint(Sketcher.Constraint("Coincident", 9, 2, 10, 1))
sketch5.addConstraint(Sketcher.Constraint("Coincident", 10, 2, 11, 1))
sketch5.addConstraint(Sketcher.Constraint("Coincident", 11, 2, 0, 1))
sketch5.addConstraint(Sketcher.Constraint("Coincident", 12, 2, 13, 1))
sketch5.addConstraint(Sketcher.Constraint("Coincident", 13, 2, 14, 1))
sketch5.addConstraint(Sketcher.Constraint("Coincident", 14, 2, 15, 1))
sketch5.addConstraint(Sketcher.Constraint("Coincident", 15, 2, 12, 1))
sketch5.addConstraint(Sketcher.Constraint("Coincident", 16, 2, 17, 1))
sketch5.addConstraint(Sketcher.Constraint("Coincident", 17, 2, 18, 1))
sketch5.addConstraint(Sketcher.Constraint("Coincident", 18, 2, 19, 1))
sketch5.addConstraint(Sketcher.Constraint("Coincident", 19, 2, 20, 1))
sketch5.addConstraint(Sketcher.Constraint("Coincident", 20, 2, 21, 1))
sketch5.addConstraint(Sketcher.Constraint("Coincident", 21, 2, 22, 1))
sketch5.addConstraint(Sketcher.Constraint("Coincident", 22, 2, 23, 1))
sketch5.addConstraint(Sketcher.Constraint("Coincident", 23, 2, 24, 1))
sketch5.addConstraint(Sketcher.Constraint("Coincident", 24, 2, 25, 1))
sketch5.addConstraint(Sketcher.Constraint("Coincident", 25, 2, 26, 1))
sketch5.addConstraint(Sketcher.Constraint("Coincident", 26, 2, 27, 1))
sketch5.addConstraint(Sketcher.Constraint("Coincident", 27, 2, 16, 1))
sketch5.addConstraint(Sketcher.Constraint("Coincident", 28, 2, 29, 1))
sketch5.addConstraint(Sketcher.Constraint("Coincident", 29, 2, 30, 1))
sketch5.addConstraint(Sketcher.Constraint("Coincident", 30, 2, 31, 1))
sketch5.addConstraint(Sketcher.Constraint("Coincident", 31, 2, 28, 1))
sketch5.addConstraint(Sketcher.Constraint("Coincident", 32, 2, 33, 1))
sketch5.addConstraint(Sketcher.Constraint("Coincident", 33, 2, 34, 1))
sketch5.addConstraint(Sketcher.Constraint("Coincident", 34, 2, 35, 1))
sketch5.addConstraint(Sketcher.Constraint("Coincident", 35, 2, 36, 1))
sketch5.addConstraint(Sketcher.Constraint("Coincident", 36, 2, 37, 1))
sketch5.addConstraint(Sketcher.Constraint("Coincident", 37, 2, 38, 1))
sketch5.addConstraint(Sketcher.Constraint("Coincident", 38, 2, 39, 1))
sketch5.addConstraint(Sketcher.Constraint("Coincident", 39, 2, 40, 1))
sketch5.addConstraint(Sketcher.Constraint("Coincident", 40, 2, 41, 1))
sketch5.addConstraint(Sketcher.Constraint("Coincident", 41, 2, 42, 1))
sketch5.addConstraint(Sketcher.Constraint("Coincident", 42, 2, 43, 1))
sketch5.addConstraint(Sketcher.Constraint("Coincident", 43, 2, 32, 1))
sketch5.addConstraint(Sketcher.Constraint("Coincident", 44, 2, 45, 1))
sketch5.addConstraint(Sketcher.Constraint("Coincident", 45, 2, 46, 1))
sketch5.addConstraint(Sketcher.Constraint("Coincident", 46, 2, 47, 1))
sketch5.addConstraint(Sketcher.Constraint("Coincident", 47, 2, 44, 1))
sketch5.addConstraint(Sketcher.Constraint("Coincident", 48, 2, 49, 1))
sketch5.addConstraint(Sketcher.Constraint("Coincident", 49, 2, 50, 1))
sketch5.addConstraint(Sketcher.Constraint("Coincident", 50, 2, 51, 1))
sketch5.addConstraint(Sketcher.Constraint("Coincident", 51, 2, 52, 1))
sketch5.addConstraint(Sketcher.Constraint("Coincident", 52, 2, 53, 1))
sketch5.addConstraint(Sketcher.Constraint("Coincident", 53, 2, 54, 1))
sketch5.addConstraint(Sketcher.Constraint("Coincident", 54, 2, 55, 1))
sketch5.addConstraint(Sketcher.Constraint("Coincident", 55, 2, 56, 1))
sketch5.addConstraint(Sketcher.Constraint("Coincident", 56, 2, 57, 1))
sketch5.addConstraint(Sketcher.Constraint("Coincident", 57, 2, 58, 1))
sketch5.addConstraint(Sketcher.Constraint("Coincident", 58, 2, 59, 1))
sketch5.addConstraint(Sketcher.Constraint("Coincident", 59, 2, 48, 1))
sketch5.addConstraint(Sketcher.Constraint("Coincident", 60, 2, 61, 1))
sketch5.addConstraint(Sketcher.Constraint("Coincident", 61, 2, 62, 1))
sketch5.addConstraint(Sketcher.Constraint("Coincident", 62, 2, 63, 1))
sketch5.addConstraint(Sketcher.Constraint("Coincident", 63, 2, 60, 1))
sketch5.addConstraint(Sketcher.Constraint("Horizontal", 0))
sketch5.addConstraint(Sketcher.Constraint("Vertical", 1))
sketch5.addConstraint(Sketcher.Constraint("Horizontal", 2))
sketch5.addConstraint(Sketcher.Constraint("Vertical", 3))
sketch5.addConstraint(Sketcher.Constraint("Horizontal", 4))
sketch5.addConstraint(Sketcher.Constraint("Vertical", 5))
sketch5.addConstraint(Sketcher.Constraint("Horizontal", 6))
sketch5.addConstraint(Sketcher.Constraint("Vertical", 7))
sketch5.addConstraint(Sketcher.Constraint("Horizontal", 8))
sketch5.addConstraint(Sketcher.Constraint("Vertical", 9))
sketch5.addConstraint(Sketcher.Constraint("Horizontal", 10))
sketch5.addConstraint(Sketcher.Constraint("Vertical", 11))
sketch5.addConstraint(Sketcher.Constraint("Vertical", 12))
sketch5.addConstraint(Sketcher.Constraint("Horizontal", 13))
sketch5.addConstraint(Sketcher.Constraint("Vertical", 14))
sketch5.addConstraint(Sketcher.Constraint("Horizontal", 15))
sketch5.addConstraint(Sketcher.Constraint("Horizontal", 16))
sketch5.addConstraint(Sketcher.Constraint("Vertical", 17))
sketch5.addConstraint(Sketcher.Constraint("Horizontal", 18))
sketch5.addConstraint(Sketcher.Constraint("Vertical", 19))
sketch5.addConstraint(Sketcher.Constraint("Horizontal", 20))
sketch5.addConstraint(Sketcher.Constraint("Vertical", 21))
sketch5.addConstraint(Sketcher.Constraint("Horizontal", 22))
sketch5.addConstraint(Sketcher.Constraint("Vertical", 23))
sketch5.addConstraint(Sketcher.Constraint("Horizontal", 24))
sketch5.addConstraint(Sketcher.Constraint("Vertical", 25))
sketch5.addConstraint(Sketcher.Constraint("Horizontal", 26))
sketch5.addConstraint(Sketcher.Constraint("Vertical", 27))
sketch5.addConstraint(Sketcher.Constraint("Vertical", 28))
sketch5.addConstraint(Sketcher.Constraint("Horizontal", 29))
sketch5.addConstraint(Sketcher.Constraint("Vertical", 30))
sketch5.addConstraint(Sketcher.Constraint("Horizontal", 31))
sketch5.addConstraint(Sketcher.Constraint("Horizontal", 32))
sketch5.addConstraint(Sketcher.Constraint("Vertical", 33))
sketch5.addConstraint(Sketcher.Constraint("Horizontal", 34))
sketch5.addConstraint(Sketcher.Constraint("Vertical", 35))
sketch5.addConstraint(Sketcher.Constraint("Horizontal", 36))
sketch5.addConstraint(Sketcher.Constraint("Vertical", 37))
sketch5.addConstraint(Sketcher.Constraint("Horizontal", 38))
sketch5.addConstraint(Sketcher.Constraint("Vertical", 39))
sketch5.addConstraint(Sketcher.Constraint("Horizontal", 40))
sketch5.addConstraint(Sketcher.Constraint("Vertical", 41))
sketch5.addConstraint(Sketcher.Constraint("Horizontal", 42))
sketch5.addConstraint(Sketcher.Constraint("Vertical", 43))
sketch5.addConstraint(Sketcher.Constraint("Vertical", 44))
sketch5.addConstraint(Sketcher.Constraint("Horizontal", 45))
sketch5.addConstraint(Sketcher.Constraint("Vertical", 46))
sketch5.addConstraint(Sketcher.Constraint("Horizontal", 47))
sketch5.addConstraint(Sketcher.Constraint("Horizontal", 48))
sketch5.addConstraint(Sketcher.Constraint("Vertical", 49))
sketch5.addConstraint(Sketcher.Constraint("Horizontal", 50))
sketch5.addConstraint(Sketcher.Constraint("Vertical", 51))
sketch5.addConstraint(Sketcher.Constraint("Horizontal", 52))
sketch5.addConstraint(Sketcher.Constraint("Vertical", 53))
sketch5.addConstraint(Sketcher.Constraint("Horizontal", 54))
sketch5.addConstraint(Sketcher.Constraint("Vertical", 55))
sketch5.addConstraint(Sketcher.Constraint("Horizontal", 56))
sketch5.addConstraint(Sketcher.Constraint("Vertical", 57))
sketch5.addConstraint(Sketcher.Constraint("Horizontal", 58))
sketch5.addConstraint(Sketcher.Constraint("Vertical", 59))
sketch5.addConstraint(Sketcher.Constraint("Vertical", 60))
sketch5.addConstraint(Sketcher.Constraint("Horizontal", 61))
sketch5.addConstraint(Sketcher.Constraint("Vertical", 62))
sketch5.addConstraint(Sketcher.Constraint("Horizontal", 63))
sketch5.addConstraint(Sketcher.Constraint("Horizontal", 2, 2, 5, 2))
sketch5.addConstraint(Sketcher.Constraint("Horizontal", 0, 2, 7, 2))
sketch5.addConstraint(Sketcher.Constraint("Horizontal", 11, 2, 12, 2))
sketch5.addConstraint(Sketcher.Constraint("Horizontal", 6, 2, 14, 2))
sketch5.addConstraint(Sketcher.Constraint("Horizontal", 18, 2, 21, 2))
sketch5.addConstraint(Sketcher.Constraint("Horizontal", 16, 2, 23, 2))
sketch5.addConstraint(Sketcher.Constraint("Horizontal", 27, 2, 28, 2))
sketch5.addConstraint(Sketcher.Constraint("Horizontal", 22, 2, 30, 2))
sketch5.addConstraint(Sketcher.Constraint("Horizontal", 43, 2, 44, 2))
sketch5.addConstraint(Sketcher.Constraint("Horizontal", 34, 2, 46, 2))
sketch5.addConstraint(Sketcher.Constraint("Horizontal", 59, 2, 60, 2))
sketch5.addConstraint(Sketcher.Constraint("Horizontal", 50, 2, 62, 2))
sketch5.addConstraint(Sketcher.Constraint("Vertical", 5, 2, 8, 2))
sketch5.addConstraint(Sketcher.Constraint("Vertical", 3, 2, 10, 2))
sketch5.addConstraint(Sketcher.Constraint("Vertical", 21, 2, 24, 2))
sketch5.addConstraint(Sketcher.Constraint("Vertical", 19, 2, 26, 2))
sketch5.addConstraint(Sketcher.Constraint("Vertical", 37, 2, 40, 2))
sketch5.addConstraint(Sketcher.Constraint("Vertical", 35, 2, 42, 2))
sketch5.addConstraint(Sketcher.Constraint("Vertical", 53, 2, 56, 2))
sketch5.addConstraint(Sketcher.Constraint("Vertical", 51, 2, 58, 2))
sketch5.addConstraint(Sketcher.Constraint("Equal", 2, 16))
sketch5.addConstraint(Sketcher.Constraint("Equal", 10, 20))
sketch5.addConstraint(Sketcher.Constraint("Equal", 8, 22))
sketch5.addConstraint(Sketcher.Constraint("Equal", 15, 29))
sketch5.addConstraint(Sketcher.Constraint("Equal", 18, 32))
sketch5.addConstraint(Sketcher.Constraint("Equal", 24, 38))
sketch5.addConstraint(Sketcher.Constraint("Equal", 34, 48))
sketch5.addConstraint(Sketcher.Constraint("Equal", 42, 52))
sketch5.addConstraint(Sketcher.Constraint("Equal", 40, 54))
sketch5.addConstraint(Sketcher.Constraint("Equal", 47, 61))
sketch5.addConstraint(Sketcher.Constraint("Equal", 14, 17))
sketch5.addConstraint(Sketcher.Constraint("Equal", 5, 19))
sketch5.addConstraint(Sketcher.Constraint("Equal", 11, 25))
sketch5.addConstraint(Sketcher.Constraint("Equal", 30, 33))
sketch5.addConstraint(Sketcher.Constraint("Equal", 21, 35))
sketch5.addConstraint(Sketcher.Constraint("Equal", 33, 39))
sketch5.addConstraint(Sketcher.Constraint("Equal", 27, 43))
sketch5.addConstraint(Sketcher.Constraint("Equal", 46, 49))
sketch5.addConstraint(Sketcher.Constraint("Equal", 35, 51))
sketch5.addConstraint(Sketcher.Constraint("Equal", 37, 53))
sketch5.addConstraint(Sketcher.Constraint("Equal", 49, 55))
sketch5.addConstraint(Sketcher.Constraint("Equal", 41, 57))
sketch5.addConstraint(Sketcher.Constraint("DistanceX", 0, 2, 0, 1, Q("1.335001 mm")))
sketch5.addConstraint(Sketcher.Constraint("DistanceX", 6, 1, 6, 2, Q("1.1913 mm")))
sketch5.addConstraint(Sketcher.Constraint("DistanceX", 36, 1, 36, 2, Q("38.037399 mm")))
sketch5.addConstraint(Sketcher.Constraint("DistanceX", -1, 1, 52, 2, Q("46.009002 mm")))
sketch5.addConstraint(Sketcher.Constraint("DistanceX", 13, 1, 13, 2, Q("28.811718 mm")))
sketch5.addConstraint(Sketcher.Constraint("DistanceY", 1, 1, 1, 2, Q("1.597829 mm")))
sketch5.addConstraint(Sketcher.Constraint("DistanceY", 9, 2, 9, 1, Q("0.778438 mm")))
sketch5.addConstraint(Sketcher.Constraint("DistanceY", 37, 2, -1, 1, Q("5.839899 mm")))
sketch5.addConstraint(Sketcher.Constraint("DistanceX", 4, 1, 4, 2, Q("30.951354 mm")))
sketch5.addConstraint(Sketcher.Constraint("DistanceX", 45, 1, 45, 2, Q("35.897763 mm")))
sketch5.addConstraint(Sketcher.Constraint("DistanceY", 3, 1, 3, 2, Q("0.709347 mm")))
sketch5.addConstraint(Sketcher.Constraint("DistanceY", 37, 2, 37, 1, Q("0.548042 mm")))
sketch5.addConstraint(Sketcher.Constraint("DistanceY", 3, 2, -1, 1, Q("5.43856 mm")))
sketch5.addConstraint(Sketcher.Constraint("DistanceX", -1, 1, 4, 2, Q("36.475691 mm")))
sketch5.addConstraint(Sketcher.Constraint("DistanceY", 17, 2, -1, 1, Q("19.155769 mm")))
sketch5.addConstraint(Sketcher.Constraint("DistanceX", -1, 1, 20, 2, Q("84.707471 mm")))
sketch5.addConstraint(Sketcher.Constraint("DistanceX", -1, 1, 45, 2, Q("94.16146 mm")))
sketch5.addConstraint(Sketcher.Constraint("DistanceY", 48, 2, -1, 1, Q("20.539721 mm")))
sketch5.addConstraint(Sketcher.Constraint("DistanceX", -1, 1, 12, 2, Q("6.747126 mm")))
sketch5.addConstraint(Sketcher.Constraint("DistanceX", -1, 1, 28, 2, Q("54.978906 mm")))
sketch5.addConstraint(Sketcher.Constraint("DistanceX", -1, 1, 32, 2, Q("55.705907 mm")))
sketch5.addConstraint(Sketcher.Constraint("DistanceX", -1, 1, 60, 2, Q("9.194392 mm")))
pad5 = body5.newObject("PartDesign::Pad", "Pad004")
pad5.Profile = sketch5
pad5.setExpression("Length", "Params.pad5_length")
doc.recompute()

body6 = doc.addObject("PartDesign::Body", "Body005")
body6.BaseFeature = body5
boolean = body.newObject("PartDesign::Boolean", "Boolean")
boolean.Type = "Cut"
boolean.addObjects([body6])
doc.recompute()

body7 = doc.addObject("PartDesign::Body", "Body006")
body7.BaseFeature = body5
boolean2 = body2.newObject("PartDesign::Boolean", "Boolean001")
boolean2.Type = "Cut"
boolean2.addObjects([body7])
doc.recompute()

body8 = doc.addObject("PartDesign::Body", "Body007")
body8.BaseFeature = body5
boolean3 = body3.newObject("PartDesign::Boolean", "Boolean002")
boolean3.Type = "Cut"
boolean3.addObjects([body8])
doc.recompute()

boolean4 = body4.newObject("PartDesign::Boolean", "Boolean003")
boolean4.Type = "Cut"
boolean4.addObjects([body5])

doc.recompute()
